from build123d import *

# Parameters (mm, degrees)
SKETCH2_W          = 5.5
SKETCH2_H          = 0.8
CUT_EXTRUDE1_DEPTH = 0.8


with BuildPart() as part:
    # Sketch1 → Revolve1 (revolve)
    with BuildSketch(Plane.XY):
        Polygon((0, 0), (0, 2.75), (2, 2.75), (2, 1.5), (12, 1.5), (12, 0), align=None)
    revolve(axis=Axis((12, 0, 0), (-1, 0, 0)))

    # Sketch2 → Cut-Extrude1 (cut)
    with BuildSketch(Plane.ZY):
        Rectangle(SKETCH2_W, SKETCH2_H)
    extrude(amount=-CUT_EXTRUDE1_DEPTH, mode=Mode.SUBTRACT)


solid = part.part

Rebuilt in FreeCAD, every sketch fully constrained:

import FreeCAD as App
import Part
import Sketcher
Q = App.Units.Quantity

doc = App.newDocument("Part")
body = doc.addObject("PartDesign::Body", "Body")

# Sketch on XY plane
sketch1 = body.newObject("Sketcher::SketchObject", "Sketch")
sketch1.AttachmentSupport = (doc.getObject("XY_Plane"), [""])
sketch1.MapMode = "FlatFace"
sketch1.addGeometry([
    Part.LineSegment(App.Vector(0, 2.75, 0), App.Vector(0, 0, 0)),  # 0
    Part.LineSegment(App.Vector(0, 0, 0), App.Vector(12, 0, 0)),  # 1
    Part.LineSegment(App.Vector(12, 0, 0), App.Vector(12, 1.5, 0)),  # 2
    Part.LineSegment(App.Vector(12, 1.5, 0), App.Vector(2, 1.5, 0)),  # 3
    Part.LineSegment(App.Vector(2, 1.5, 0), App.Vector(2, 2.75, 0)),  # 4
    Part.LineSegment(App.Vector(2, 2.75, 0), App.Vector(0, 2.75, 0)),  # 5
], False)
sketch1.addConstraint([
    Sketcher.Constraint("Coincident", 0, 2, 1, 1),
    Sketcher.Constraint("Coincident", 1, 2, 2, 1),
    Sketcher.Constraint("Coincident", 2, 2, 3, 1),
    Sketcher.Constraint("Coincident", 3, 2, 4, 1),
    Sketcher.Constraint("Coincident", 4, 2, 5, 1),
    Sketcher.Constraint("Coincident", 5, 2, 0, 1),
    Sketcher.Constraint("Vertical", 0),
    Sketcher.Constraint("Horizontal", 1),
    Sketcher.Constraint("Vertical", 2),
    Sketcher.Constraint("Horizontal", 3),
    Sketcher.Constraint("Vertical", 4),
    Sketcher.Constraint("Horizontal", 5),
    Sketcher.Constraint("Coincident", 0, 2, -1, 1),
    Sketcher.Constraint("DistanceX", 1, 1, 1, 2, Q("12 mm")),
    Sketcher.Constraint("DistanceX", 3, 2, 3, 1, Q("10 mm")),
    Sketcher.Constraint("DistanceY", 2, 1, 2, 2, Q("1.5 mm")),
    Sketcher.Constraint("DistanceY", 0, 2, 0, 1, Q("2.75 mm")),
])
revolution = body.newObject("PartDesign::Revolution", "Revolution")
revolution.Profile = sketch1
revolution.ReferenceAxis = (sketch1, ["H_Axis"])
revolution.Angle = 360

# Sketch on YZ plane
sketch2 = body.newObject("Sketcher::SketchObject", "Sketch001")
sketch2.AttachmentSupport = (doc.getObject("YZ_Plane"), [""])
sketch2.MapMode = "FlatFace"
sketch2.addGeometry([
    Part.LineSegment(App.Vector(0.4, -2.75, 0), App.Vector(-0.4, -2.75, 0)),
    Part.LineSegment(App.Vector(-0.4, -2.75, 0), App.Vector(-0.4, 2.75, 0)),
    Part.LineSegment(App.Vector(-0.4, 2.75, 0), App.Vector(0.4, 2.75, 0)),
    Part.LineSegment(App.Vector(0.4, 2.75, 0), App.Vector(0.4, -2.75, 0)),
], False)
sketch2.addConstraint([
    Sketcher.Constraint("Coincident", 0, 2, 1, 1),
    Sketcher.Constraint("Coincident", 1, 2, 2, 1),
    Sketcher.Constraint("Coincident", 2, 2, 3, 1),
    Sketcher.Constraint("Coincident", 3, 2, 0, 1),
    Sketcher.Constraint("Horizontal", 0),
    Sketcher.Constraint("Vertical", 1),
    Sketcher.Constraint("Horizontal", 2),
    Sketcher.Constraint("Vertical", 3),
    Sketcher.Constraint("Symmetric", 0, 2, 2, 2, -1, 1),
    Sketcher.Constraint("DistanceX", 0, 2, 0, 1, Q("0.8 mm")),
    Sketcher.Constraint("DistanceY", 1, 1, 1, 2, Q("5.5 mm")),
])
pocket1 = body.newObject("PartDesign::Pocket", "Pocket")
pocket1.Profile = sketch2
pocket1.Length = 0.8
pocket1.Reversed = True

doc.recompute()
